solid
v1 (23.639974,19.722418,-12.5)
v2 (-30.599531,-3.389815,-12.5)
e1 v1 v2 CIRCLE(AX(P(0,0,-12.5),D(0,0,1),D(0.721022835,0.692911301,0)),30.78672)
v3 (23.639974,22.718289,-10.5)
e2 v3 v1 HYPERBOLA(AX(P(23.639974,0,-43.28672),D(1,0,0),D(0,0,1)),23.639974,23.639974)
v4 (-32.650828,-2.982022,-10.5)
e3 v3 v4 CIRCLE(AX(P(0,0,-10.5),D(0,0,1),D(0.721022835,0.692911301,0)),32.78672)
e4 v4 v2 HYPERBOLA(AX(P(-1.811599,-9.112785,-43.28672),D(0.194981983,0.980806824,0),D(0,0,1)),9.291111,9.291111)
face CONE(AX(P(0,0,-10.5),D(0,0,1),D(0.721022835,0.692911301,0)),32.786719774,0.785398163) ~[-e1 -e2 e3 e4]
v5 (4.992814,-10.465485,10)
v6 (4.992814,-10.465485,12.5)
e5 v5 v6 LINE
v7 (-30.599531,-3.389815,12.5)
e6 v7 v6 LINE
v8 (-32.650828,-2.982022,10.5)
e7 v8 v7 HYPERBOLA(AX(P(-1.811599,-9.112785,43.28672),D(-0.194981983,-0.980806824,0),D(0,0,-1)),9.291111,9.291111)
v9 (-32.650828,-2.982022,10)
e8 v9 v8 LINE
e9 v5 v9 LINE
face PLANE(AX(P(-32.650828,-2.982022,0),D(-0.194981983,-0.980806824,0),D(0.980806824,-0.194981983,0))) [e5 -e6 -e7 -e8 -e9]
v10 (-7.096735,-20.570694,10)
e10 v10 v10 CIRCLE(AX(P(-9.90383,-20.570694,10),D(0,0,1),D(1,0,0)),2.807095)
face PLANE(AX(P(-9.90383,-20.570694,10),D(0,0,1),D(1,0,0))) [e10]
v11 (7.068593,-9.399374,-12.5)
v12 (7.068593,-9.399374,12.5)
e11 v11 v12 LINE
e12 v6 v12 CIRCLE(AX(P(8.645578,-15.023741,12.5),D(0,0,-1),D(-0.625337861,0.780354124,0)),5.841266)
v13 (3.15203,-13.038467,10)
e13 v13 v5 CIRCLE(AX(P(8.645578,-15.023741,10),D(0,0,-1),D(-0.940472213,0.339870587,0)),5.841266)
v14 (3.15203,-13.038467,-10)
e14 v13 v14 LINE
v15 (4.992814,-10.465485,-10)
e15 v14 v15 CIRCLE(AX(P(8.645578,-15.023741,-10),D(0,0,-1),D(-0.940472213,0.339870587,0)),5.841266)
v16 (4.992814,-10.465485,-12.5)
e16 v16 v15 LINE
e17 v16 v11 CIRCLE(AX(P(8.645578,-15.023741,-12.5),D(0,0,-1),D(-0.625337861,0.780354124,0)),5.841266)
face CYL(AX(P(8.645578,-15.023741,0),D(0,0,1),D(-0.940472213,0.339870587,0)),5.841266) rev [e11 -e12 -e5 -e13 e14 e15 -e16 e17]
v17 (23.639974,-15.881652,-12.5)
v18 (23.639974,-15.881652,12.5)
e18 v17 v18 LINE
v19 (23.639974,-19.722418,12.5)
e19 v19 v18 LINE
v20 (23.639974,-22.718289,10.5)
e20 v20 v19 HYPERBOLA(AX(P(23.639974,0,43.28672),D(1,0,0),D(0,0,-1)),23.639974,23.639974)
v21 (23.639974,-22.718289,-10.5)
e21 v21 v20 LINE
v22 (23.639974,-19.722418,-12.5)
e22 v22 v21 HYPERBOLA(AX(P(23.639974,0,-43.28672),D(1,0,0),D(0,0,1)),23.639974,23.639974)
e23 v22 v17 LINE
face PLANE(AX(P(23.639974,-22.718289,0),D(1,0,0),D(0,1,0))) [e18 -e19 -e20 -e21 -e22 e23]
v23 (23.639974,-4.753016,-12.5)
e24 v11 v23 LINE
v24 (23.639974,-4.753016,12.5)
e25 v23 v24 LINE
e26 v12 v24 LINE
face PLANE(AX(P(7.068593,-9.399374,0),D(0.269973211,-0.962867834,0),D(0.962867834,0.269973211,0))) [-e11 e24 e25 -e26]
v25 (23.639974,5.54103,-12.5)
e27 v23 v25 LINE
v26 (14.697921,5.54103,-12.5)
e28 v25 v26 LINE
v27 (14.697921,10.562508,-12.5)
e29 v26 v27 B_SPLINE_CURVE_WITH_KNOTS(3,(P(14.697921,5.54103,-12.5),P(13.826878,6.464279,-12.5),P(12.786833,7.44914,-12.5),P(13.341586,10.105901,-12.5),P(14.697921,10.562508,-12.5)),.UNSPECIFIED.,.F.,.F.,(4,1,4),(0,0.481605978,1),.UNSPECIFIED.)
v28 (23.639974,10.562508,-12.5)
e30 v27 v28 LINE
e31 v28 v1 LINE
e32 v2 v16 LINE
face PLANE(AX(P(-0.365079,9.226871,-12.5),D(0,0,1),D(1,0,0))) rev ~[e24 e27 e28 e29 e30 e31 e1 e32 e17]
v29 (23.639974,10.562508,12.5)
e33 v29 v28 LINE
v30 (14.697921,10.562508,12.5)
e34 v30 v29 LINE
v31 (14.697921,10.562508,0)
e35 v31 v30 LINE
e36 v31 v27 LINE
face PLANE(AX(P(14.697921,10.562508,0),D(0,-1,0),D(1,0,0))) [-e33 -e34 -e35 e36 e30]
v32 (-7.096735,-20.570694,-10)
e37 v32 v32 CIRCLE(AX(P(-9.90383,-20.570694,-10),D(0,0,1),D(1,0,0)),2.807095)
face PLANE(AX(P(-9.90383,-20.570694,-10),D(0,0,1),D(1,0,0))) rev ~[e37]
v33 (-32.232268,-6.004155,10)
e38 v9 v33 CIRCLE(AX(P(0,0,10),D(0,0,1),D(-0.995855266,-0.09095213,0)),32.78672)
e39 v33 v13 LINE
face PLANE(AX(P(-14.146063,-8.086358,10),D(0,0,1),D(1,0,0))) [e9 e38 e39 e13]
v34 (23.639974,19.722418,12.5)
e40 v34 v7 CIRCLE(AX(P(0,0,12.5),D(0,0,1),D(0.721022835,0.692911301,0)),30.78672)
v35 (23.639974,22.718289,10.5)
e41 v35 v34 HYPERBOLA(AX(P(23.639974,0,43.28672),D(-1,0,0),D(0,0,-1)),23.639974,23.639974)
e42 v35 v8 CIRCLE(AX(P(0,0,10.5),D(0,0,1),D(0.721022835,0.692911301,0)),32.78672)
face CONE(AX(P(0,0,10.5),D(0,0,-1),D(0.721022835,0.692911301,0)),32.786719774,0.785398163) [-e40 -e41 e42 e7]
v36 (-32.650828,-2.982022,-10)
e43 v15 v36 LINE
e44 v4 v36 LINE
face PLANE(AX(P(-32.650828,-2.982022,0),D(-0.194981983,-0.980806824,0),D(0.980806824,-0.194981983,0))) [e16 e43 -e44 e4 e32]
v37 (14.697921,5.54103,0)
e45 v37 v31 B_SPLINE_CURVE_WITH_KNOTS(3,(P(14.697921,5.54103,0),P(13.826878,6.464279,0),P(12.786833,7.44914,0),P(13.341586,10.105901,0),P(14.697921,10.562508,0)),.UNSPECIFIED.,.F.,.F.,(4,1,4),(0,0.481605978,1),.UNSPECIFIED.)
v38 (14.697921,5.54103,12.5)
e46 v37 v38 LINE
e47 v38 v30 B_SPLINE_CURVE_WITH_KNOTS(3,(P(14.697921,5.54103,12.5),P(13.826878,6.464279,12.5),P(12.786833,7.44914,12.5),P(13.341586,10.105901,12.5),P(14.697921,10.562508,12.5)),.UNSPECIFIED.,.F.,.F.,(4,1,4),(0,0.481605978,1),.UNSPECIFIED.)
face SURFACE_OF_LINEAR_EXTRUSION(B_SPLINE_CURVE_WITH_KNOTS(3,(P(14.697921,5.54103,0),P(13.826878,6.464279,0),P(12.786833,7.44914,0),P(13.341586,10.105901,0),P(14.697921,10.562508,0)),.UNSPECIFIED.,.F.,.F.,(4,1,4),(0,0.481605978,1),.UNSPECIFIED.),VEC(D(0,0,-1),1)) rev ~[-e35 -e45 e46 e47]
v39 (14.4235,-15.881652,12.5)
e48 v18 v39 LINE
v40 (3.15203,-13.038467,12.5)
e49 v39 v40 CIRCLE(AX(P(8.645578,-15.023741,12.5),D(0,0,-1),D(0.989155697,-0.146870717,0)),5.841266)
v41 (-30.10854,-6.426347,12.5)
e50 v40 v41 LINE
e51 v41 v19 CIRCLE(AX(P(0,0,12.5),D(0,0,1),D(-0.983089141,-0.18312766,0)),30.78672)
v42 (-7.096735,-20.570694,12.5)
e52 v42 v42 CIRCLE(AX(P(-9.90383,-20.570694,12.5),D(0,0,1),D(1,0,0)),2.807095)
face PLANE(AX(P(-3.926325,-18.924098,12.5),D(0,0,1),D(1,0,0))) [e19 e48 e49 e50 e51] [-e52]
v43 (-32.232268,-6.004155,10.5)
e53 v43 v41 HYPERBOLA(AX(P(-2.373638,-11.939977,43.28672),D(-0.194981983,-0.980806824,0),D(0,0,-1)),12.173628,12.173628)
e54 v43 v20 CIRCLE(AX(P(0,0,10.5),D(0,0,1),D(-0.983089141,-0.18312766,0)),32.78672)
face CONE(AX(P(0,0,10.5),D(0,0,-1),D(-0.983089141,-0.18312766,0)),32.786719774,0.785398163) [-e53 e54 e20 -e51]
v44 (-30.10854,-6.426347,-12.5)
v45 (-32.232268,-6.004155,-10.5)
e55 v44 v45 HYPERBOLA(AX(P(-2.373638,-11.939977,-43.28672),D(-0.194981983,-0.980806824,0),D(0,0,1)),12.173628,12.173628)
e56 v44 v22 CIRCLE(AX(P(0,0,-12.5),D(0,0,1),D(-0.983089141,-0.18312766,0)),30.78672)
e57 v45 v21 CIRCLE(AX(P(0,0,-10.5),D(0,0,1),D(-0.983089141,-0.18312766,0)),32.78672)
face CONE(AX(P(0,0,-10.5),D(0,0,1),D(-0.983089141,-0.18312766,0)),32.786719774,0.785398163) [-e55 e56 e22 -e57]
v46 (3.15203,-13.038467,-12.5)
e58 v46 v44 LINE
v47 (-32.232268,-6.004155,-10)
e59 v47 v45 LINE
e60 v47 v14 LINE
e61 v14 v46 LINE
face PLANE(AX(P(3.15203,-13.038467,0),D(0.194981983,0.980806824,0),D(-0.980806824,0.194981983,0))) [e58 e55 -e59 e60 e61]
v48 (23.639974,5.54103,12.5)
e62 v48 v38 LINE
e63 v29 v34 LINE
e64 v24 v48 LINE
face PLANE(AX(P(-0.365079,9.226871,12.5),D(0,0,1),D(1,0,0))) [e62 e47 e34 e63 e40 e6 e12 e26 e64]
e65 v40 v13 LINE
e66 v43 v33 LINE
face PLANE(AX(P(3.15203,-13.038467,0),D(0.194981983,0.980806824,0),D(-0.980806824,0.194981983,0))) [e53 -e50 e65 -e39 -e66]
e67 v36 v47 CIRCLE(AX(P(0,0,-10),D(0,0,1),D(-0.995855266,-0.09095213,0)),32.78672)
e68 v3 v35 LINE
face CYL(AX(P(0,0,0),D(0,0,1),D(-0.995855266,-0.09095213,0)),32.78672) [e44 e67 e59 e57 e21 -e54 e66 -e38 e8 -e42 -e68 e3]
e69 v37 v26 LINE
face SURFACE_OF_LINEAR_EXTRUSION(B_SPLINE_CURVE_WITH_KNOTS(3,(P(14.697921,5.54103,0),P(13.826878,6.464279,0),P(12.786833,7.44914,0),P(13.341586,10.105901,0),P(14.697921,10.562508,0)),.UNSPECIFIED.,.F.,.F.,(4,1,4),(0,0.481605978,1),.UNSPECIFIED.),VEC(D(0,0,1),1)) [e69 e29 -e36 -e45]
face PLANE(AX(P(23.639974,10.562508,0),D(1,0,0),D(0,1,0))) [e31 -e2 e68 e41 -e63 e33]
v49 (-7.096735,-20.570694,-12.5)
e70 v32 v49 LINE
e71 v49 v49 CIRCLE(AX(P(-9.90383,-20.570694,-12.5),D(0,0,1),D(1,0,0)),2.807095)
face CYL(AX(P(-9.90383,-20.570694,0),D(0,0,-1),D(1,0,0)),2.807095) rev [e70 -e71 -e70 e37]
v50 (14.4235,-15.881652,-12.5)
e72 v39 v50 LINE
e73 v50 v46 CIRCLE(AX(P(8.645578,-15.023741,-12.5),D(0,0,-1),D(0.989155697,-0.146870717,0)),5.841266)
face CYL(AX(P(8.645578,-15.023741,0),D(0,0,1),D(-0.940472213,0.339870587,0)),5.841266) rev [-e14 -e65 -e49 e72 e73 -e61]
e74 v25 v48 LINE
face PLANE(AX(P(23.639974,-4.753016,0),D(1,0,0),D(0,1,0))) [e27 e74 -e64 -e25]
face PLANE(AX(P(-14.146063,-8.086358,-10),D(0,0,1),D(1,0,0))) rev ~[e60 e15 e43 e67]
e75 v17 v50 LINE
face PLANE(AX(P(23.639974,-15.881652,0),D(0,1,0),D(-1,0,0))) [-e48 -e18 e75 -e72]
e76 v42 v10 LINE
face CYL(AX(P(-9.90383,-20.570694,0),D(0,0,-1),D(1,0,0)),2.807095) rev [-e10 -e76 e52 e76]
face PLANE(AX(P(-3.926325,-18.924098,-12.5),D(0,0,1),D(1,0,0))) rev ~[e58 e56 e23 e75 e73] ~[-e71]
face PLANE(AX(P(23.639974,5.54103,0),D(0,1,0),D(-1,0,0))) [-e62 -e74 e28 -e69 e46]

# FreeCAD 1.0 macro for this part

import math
import FreeCAD as App
import Part
import Sketcher
Q = App.Units.Quantity


def edges_at(feature, points):
    """Names of the edges that pass closest to the given points."""
    edges = feature.Shape.Edges
    near = lambda p: min(range(len(edges)), key=lambda i: edges[i].distToShape(Part.Vertex(*p))[0])
    return sorted({f"Edge{near(p) + 1}" for p in points})

doc = App.newDocument("Part")
body = doc.addObject("PartDesign::Body", "Body")

# Sketch on XY plane
sketch1 = body.newObject("Sketcher::SketchObject", "Sketch")
sketch1.AttachmentSupport = (doc.getObject("XY_Plane"), [""])
sketch1.MapMode = "FlatFace"
sketch1.addGeometry([
    Part.LineSegment(App.Vector(23.639974, 10.562508, 0), App.Vector(23.639974, 22.718289, 0)),  # 0
    Part.ArcOfCircle(Part.Circle(App.Vector(0, 0, 0), App.Vector(0, 0, 1), 32.78672), math.radians(43.861008), math.radians(185.218385)),  # 1
    Part.LineSegment(App.Vector(-32.650828, -2.982022, 0), App.Vector(4.992814, -10.465485, 0)),  # 2
    Part.ArcOfCircle(Part.Circle(App.Vector(8.645578, -15.023741, 0), App.Vector(0, 0, 1), 5.841266), math.radians(105.662673), math.radians(128.70699)),  # 3
    Part.LineSegment(App.Vector(7.068593, -9.399374, 0), App.Vector(23.639974, -4.753016, 0)),  # 4
    Part.LineSegment(App.Vector(23.639974, -4.753016, 0), App.Vector(23.639974, 5.54103, 0)),  # 5
    Part.LineSegment(App.Vector(23.639974, 5.54103, 0), App.Vector(14.697921, 5.54103, 0)),  # 6
    Part.BSplineCurve([App.Vector(14.697921, 5.54103, 0), App.Vector(13.826878, 6.464279, 0), App.Vector(12.786833, 7.44914, 0), App.Vector(13.341586, 10.105901, 0), App.Vector(14.697921, 10.562508, 0)], [4, 1, 4], [0, 0.481605978, 1], False, 3, [1, 1, 1, 1, 1], False),  # 7
    Part.LineSegment(App.Vector(14.697921, 10.562508, 0), App.Vector(23.639974, 10.562508, 0)),  # 8
], False)
sketch1.addConstraint([
    Sketcher.Constraint("Block", 7),
    Sketcher.Constraint("Coincident", 0, 2, 1, 1),
    Sketcher.Constraint("Coincident", 1, 2, 2, 1),
    Sketcher.Constraint("Coincident", 2, 2, 3, 2),
    Sketcher.Constraint("Tangent", 3, 1, 4, 1),
    Sketcher.Constraint("Coincident", 4, 2, 5, 1),
    Sketcher.Constraint("Coincident", 5, 2, 6, 1),
    Sketcher.Constraint("Coincident", 6, 2, 7, 1),
    Sketcher.Constraint("Coincident", 7, 2, 8, 1),
    Sketcher.Constraint("Coincident", 8, 2, 0, 1),
    Sketcher.Constraint("Vertical", 0),
    Sketcher.Constraint("Vertical", 5),
    Sketcher.Constraint("Horizontal", 6),
    Sketcher.Constraint("Horizontal", 8),
    Sketcher.Constraint("Coincident", 1, 3, -1, 1),
    Sketcher.Constraint("Vertical", 0, 2, 4, 2),
    Sketcher.Constraint("Radius", 1, Q("32.78672 mm")),
    Sketcher.Constraint("Radius", 3, Q("5.841266 mm")),
    Sketcher.Constraint("DistanceY", 0, 1, 0, 2, Q("12.15578 mm")),
    Sketcher.Constraint("DistanceX", 1, 2, 0, 2, Q("56.290801 mm")),
    Sketcher.Constraint("Distance", 2, Q("38.380281 mm")),
    Sketcher.Constraint("Distance", 4, Q("17.210442 mm")),
    Sketcher.Constraint("DistanceY", 5, 1, 5, 2, Q("10.294046 mm")),
    Sketcher.Constraint("DistanceX", -1, 1, 3, 3, Q("8.645578 mm")),
])
pad1 = body.newObject("PartDesign::Pad", "Pad")
pad1.Profile = sketch1
pad1.Type = "TwoLengths"
pad1.Length = 12.5
pad1.Length2 = 12.5
body2 = doc.addObject("PartDesign::Body", "Body001")

# Sketch on XY plane
sketch2 = body2.newObject("Sketcher::SketchObject", "Sketch001")
sketch2.AttachmentSupport = (doc.getObject("XY_Plane001"), [""])
sketch2.MapMode = "FlatFace"
sketch2.addGeometry([
    Part.ArcOfCircle(Part.Circle(App.Vector(0, 0, 0), App.Vector(0, 0, 1), 32.78672), math.radians(-169.44801), math.radians(-43.861008)),  # 0
    Part.LineSegment(App.Vector(23.639974, -22.718289, 0), App.Vector(23.639974, -15.881652, 0)),  # 1
    Part.LineSegment(App.Vector(23.639974, -15.881652, 0), App.Vector(14.4235, -15.881652, 0)),  # 2
    Part.ArcOfCircle(Part.Circle(App.Vector(8.645578, -15.023741, 0), App.Vector(0, 0, 1), 5.841266), math.radians(160.13101), math.radians(351.554377)),  # 3
    Part.LineSegment(App.Vector(3.15203, -13.038467, 0), App.Vector(-32.232268, -6.004155, 0)),  # 4
    Part.Circle(App.Vector(-9.90383, -20.570694, 0), App.Vector(0, 0, 1), 2.807095),  # 5
], False)
sketch2.addConstraint([
    Sketcher.Constraint("Coincident", 0, 2, 1, 1),
    Sketcher.Constraint("Coincident", 1, 2, 2, 1),
    Sketcher.Constraint("Coincident", 2, 2, 3, 2),
    Sketcher.Constraint("Coincident", 3, 1, 4, 1),
    Sketcher.Constraint("Coincident", 4, 2, 0, 1),
    Sketcher.Constraint("Vertical", 1),
    Sketcher.Constraint("Horizontal", 2),
    Sketcher.Constraint("Coincident", 0, 3, -1, 1),
    Sketcher.Constraint("Diameter", 5, Q("5.61419 mm")),
    Sketcher.Constraint("Radius", 0, Q("32.78672 mm")),
    Sketcher.Constraint("Radius", 3, Q("5.841266 mm")),
    Sketcher.Constraint("DistanceX", -1, 1, 2, 2, Q("14.4235 mm")),
    Sketcher.Constraint("DistanceX", 4, 2, 3, 1, Q("35.384298 mm")),
    Sketcher.Constraint("DistanceX", 2, 2, 2, 1, Q("9.216474 mm")),
    Sketcher.Constraint("DistanceY", 1, 1, 1, 2, Q("6.836637 mm")),
    Sketcher.Constraint("DistanceX", -1, 1, 3, 3, Q("8.645578 mm")),
    Sketcher.Constraint("DistanceX", 5, 3, -1, 1, Q("9.90383 mm")),
    Sketcher.Constraint("DistanceX", -1, 1, 3, 1, Q("3.15203 mm")),
    Sketcher.Constraint("DistanceY", 5, 3, 1, 2, Q("4.689041 mm")),
])
pad2 = body2.newObject("PartDesign::Pad", "Pad001")
pad2.Profile = sketch2
pad2.Type = "TwoLengths"
pad2.Length = 12.5
pad2.Length2 = 12.5
body.AllowCompound = True
doc.recompute()

boolean = body.newObject("PartDesign::Boolean", "Boolean")
boolean.Type = "Fuse"
boolean.addObjects([body2])

# Sketch on XY plane
sketch3 = body.newObject("Sketcher::SketchObject", "Sketch002")
sketch3.AttachmentSupport = (doc.getObject("XY_Plane"), [""])
sketch3.MapMode = "FlatFace"
sketch3.addGeometry([
    Part.LineSegment(App.Vector(4.992814, -10.465485, 0), App.Vector(-32.650828, -2.982022, 0)),
    Part.ArcOfCircle(Part.Circle(App.Vector(0, 0, 0), App.Vector(0, 0, 1), 32.78672), math.radians(-174.781615), math.radians(-169.44801)),
    Part.LineSegment(App.Vector(-32.232268, -6.004155, 0), App.Vector(3.15203, -13.038467, 0)),
    Part.ArcOfCircle(Part.Circle(App.Vector(8.645578, -15.023741, 0), App.Vector(0, 0, 1), 5.841266), math.radians(128.70699), math.radians(160.13101)),
], False)
sketch3.addConstraint([
    Sketcher.Constraint("Coincident", 0, 2, 1, 1),
    Sketcher.Constraint("Coincident", 1, 2, 2, 1),
    Sketcher.Constraint("Coincident", 2, 2, 3, 2),
    Sketcher.Constraint("Coincident", 3, 1, 0, 1),
    Sketcher.Constraint("Coincident", 1, 3, -1, 1),
    Sketcher.Constraint("Parallel", 0, 2),
    Sketcher.Constraint("Radius", 1, Q("32.78672 mm")),
    Sketcher.Constraint("Radius", 3, Q("5.841266 mm")),
    Sketcher.Constraint("DistanceX", 1, 2, 2, 2, Q("35.384298 mm")),
    Sketcher.Constraint("Distance", 0, Q("38.380281 mm")),
    Sketcher.Constraint("DistanceX", -1, 1, 3, 3, Q("8.645578 mm")),
    Sketcher.Constraint("DistanceY", 3, 3, -1, 1, Q("15.023741 mm")),
    Sketcher.Constraint("DistanceX", 1, 2, -1, 1, Q("32.232268 mm")),
])
pad3 = body.newObject("PartDesign::Pad", "Pad002")
pad3.Profile = sketch3
pad3.Type = "TwoLengths"
pad3.Length = 10
pad3.Length2 = 10

# Sketch on XY plane
sketch4 = body.newObject("Sketcher::SketchObject", "Sketch003")
sketch4.AttachmentSupport = (doc.getObject("XY_Plane"), [""])
sketch4.MapMode = "FlatFace"
sketch4.addGeometry(Part.Circle(App.Vector(-9.90383, -20.570694, 0), App.Vector(0, 0, 1), 2.807095), False)
sketch4.addConstraint([
    Sketcher.Constraint("Diameter", 0, Q("5.61419 mm")),
    Sketcher.Constraint("DistanceX", 0, 3, -1, 1, Q("9.90383 mm")),
    Sketcher.Constraint("DistanceY", 0, 3, -1, 1, Q("20.570694 mm")),
])
pad4 = body.newObject("PartDesign::Pad", "Pad003")
pad4.Profile = sketch4
pad4.Type = "TwoLengths"
pad4.Length = 10
pad4.Length2 = 10
doc.recompute()

chamfer = body.newObject("PartDesign::Chamfer", "Chamfer")
chamfer.Base = (pad4, edges_at(pad4, [
    (-13.617, 29.825, 12.5),
    (-9.397, -31.411, 12.5),
    (-13.617, 29.825, -12.5),
    (-9.397, -31.411, -12.5),
]))
chamfer.Size = 2

doc.recompute()
